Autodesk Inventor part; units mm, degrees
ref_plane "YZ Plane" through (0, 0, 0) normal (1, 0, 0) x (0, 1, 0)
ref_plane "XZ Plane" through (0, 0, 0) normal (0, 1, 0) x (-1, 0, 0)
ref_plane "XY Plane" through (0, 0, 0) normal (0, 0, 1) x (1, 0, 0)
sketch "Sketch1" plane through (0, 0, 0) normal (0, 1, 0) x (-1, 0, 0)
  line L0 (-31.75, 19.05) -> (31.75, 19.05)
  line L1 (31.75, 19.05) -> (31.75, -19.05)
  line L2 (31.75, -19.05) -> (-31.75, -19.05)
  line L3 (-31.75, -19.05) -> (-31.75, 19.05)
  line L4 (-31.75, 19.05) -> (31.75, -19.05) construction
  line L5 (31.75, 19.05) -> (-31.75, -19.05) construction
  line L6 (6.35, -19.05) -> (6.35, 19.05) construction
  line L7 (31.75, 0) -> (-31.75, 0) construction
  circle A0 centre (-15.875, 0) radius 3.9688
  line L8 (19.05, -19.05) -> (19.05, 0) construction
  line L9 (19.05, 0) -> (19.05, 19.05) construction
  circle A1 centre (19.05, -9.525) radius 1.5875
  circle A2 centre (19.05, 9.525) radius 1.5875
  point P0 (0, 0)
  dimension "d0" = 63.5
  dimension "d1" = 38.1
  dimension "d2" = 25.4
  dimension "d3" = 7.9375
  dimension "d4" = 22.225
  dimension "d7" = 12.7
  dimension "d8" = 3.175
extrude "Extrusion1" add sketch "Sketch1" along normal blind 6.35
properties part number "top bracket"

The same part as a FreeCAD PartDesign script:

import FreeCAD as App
import Part
import Sketcher
Q = App.Units.Quantity

doc = App.newDocument("Part")
params = doc.addObject("Spreadsheet::Sheet", "Params")
for row, (alias, value) in enumerate([
    ("sketch1_diameter", "0.125 in"),
    ("sketch1_diameter2", "0.3125 in"),
    ("sketch1_width", "2.5 in"),
    ("sketch1_height", "1.5 in"),
    ("pad1_length", "0.25 in"),
], start=1):
    params.set(f"A{row}", alias)
    params.set(f"B{row}", "=" + value)
    params.setAlias(f"B{row}", alias)

body = doc.addObject("PartDesign::Body", "Body")

# Sketch on XZ plane
sketch1 = body.newObject("Sketcher::SketchObject", "Sketch")
sketch1.AttachmentSupport = (doc.getObject("XZ_Plane"), [""])
sketch1.MapMode = "FlatFace"
sketch1.addGeometry([
    Part.LineSegment(App.Vector(-31.8, 19.1, 0), App.Vector(31.8, 19.1, 0)),  # 0
    Part.LineSegment(App.Vector(31.8, 19.1, 0), App.Vector(31.8, -19.1, 0)),  # 1
    Part.LineSegment(App.Vector(31.8, -19.1, 0), App.Vector(-31.8, -19.1, 0)),  # 2
    Part.LineSegment(App.Vector(-31.8, -19.1, 0), App.Vector(-31.8, 19.1, 0)),  # 3
    Part.Circle(App.Vector(-19.1, -9.5, 0), App.Vector(0, 0, 1), 1.6),  # 4
    Part.Circle(App.Vector(15.9, 0, 0), App.Vector(0, 0, 1), 4),  # 5
    Part.Circle(App.Vector(-19.1, 9.5, 0), App.Vector(0, 0, 1), 1.6),  # 6
], False)
sketch1.addConstraint([
    Sketcher.Constraint("Coincident", 0, 2, 1, 1),
    Sketcher.Constraint("Coincident", 1, 2, 2, 1),
    Sketcher.Constraint("Coincident", 2, 2, 3, 1),
    Sketcher.Constraint("Coincident", 3, 2, 0, 1),
    Sketcher.Constraint("Horizontal", 0),
    Sketcher.Constraint("Vertical", 1),
    Sketcher.Constraint("Horizontal", 2),
    Sketcher.Constraint("Vertical", 3),
    Sketcher.Constraint("Equal", 4, 6),
    Sketcher.Constraint("Symmetric", 0, 2, 2, 2, -1, 1),
    Sketcher.Constraint("Symmetric", 4, 3, 6, 3, -1),
    Sketcher.Constraint("PointOnObject", 5, 3, -1),
    Sketcher.Constraint("Diameter", 4, Q("0.125 in")),
    Sketcher.Constraint("Diameter", 5, Q("0.3125 in")),
    Sketcher.Constraint("DistanceX", 0, 1, 0, 2, Q("2.5 in")),
    Sketcher.Constraint("DistanceY", 1, 2, 1, 1, Q("1.5 in")),
    Sketcher.Constraint("DistanceX", 2, 2, 4, 3, Q("0.5 in")),
    Sketcher.Constraint("DistanceY", 4, 3, 6, 3, Q("0.75 in")),
    Sketcher.Constraint("DistanceX", -1, 1, 5, 3, Q("0.625 in")),
])
sketch1.setExpression("Constraints[12]", "Params.sketch1_diameter")
sketch1.setExpression("Constraints[13]", "Params.sketch1_diameter2")
sketch1.setExpression("Constraints[14]", "Params.sketch1_width")
sketch1.setExpression("Constraints[15]", "Params.sketch1_height")
pad1 = body.newObject("PartDesign::Pad", "Pad")
pad1.Profile = sketch1
pad1.setExpression("Length", "Params.pad1_length")
pad1.Reversed = True

doc.recompute()
